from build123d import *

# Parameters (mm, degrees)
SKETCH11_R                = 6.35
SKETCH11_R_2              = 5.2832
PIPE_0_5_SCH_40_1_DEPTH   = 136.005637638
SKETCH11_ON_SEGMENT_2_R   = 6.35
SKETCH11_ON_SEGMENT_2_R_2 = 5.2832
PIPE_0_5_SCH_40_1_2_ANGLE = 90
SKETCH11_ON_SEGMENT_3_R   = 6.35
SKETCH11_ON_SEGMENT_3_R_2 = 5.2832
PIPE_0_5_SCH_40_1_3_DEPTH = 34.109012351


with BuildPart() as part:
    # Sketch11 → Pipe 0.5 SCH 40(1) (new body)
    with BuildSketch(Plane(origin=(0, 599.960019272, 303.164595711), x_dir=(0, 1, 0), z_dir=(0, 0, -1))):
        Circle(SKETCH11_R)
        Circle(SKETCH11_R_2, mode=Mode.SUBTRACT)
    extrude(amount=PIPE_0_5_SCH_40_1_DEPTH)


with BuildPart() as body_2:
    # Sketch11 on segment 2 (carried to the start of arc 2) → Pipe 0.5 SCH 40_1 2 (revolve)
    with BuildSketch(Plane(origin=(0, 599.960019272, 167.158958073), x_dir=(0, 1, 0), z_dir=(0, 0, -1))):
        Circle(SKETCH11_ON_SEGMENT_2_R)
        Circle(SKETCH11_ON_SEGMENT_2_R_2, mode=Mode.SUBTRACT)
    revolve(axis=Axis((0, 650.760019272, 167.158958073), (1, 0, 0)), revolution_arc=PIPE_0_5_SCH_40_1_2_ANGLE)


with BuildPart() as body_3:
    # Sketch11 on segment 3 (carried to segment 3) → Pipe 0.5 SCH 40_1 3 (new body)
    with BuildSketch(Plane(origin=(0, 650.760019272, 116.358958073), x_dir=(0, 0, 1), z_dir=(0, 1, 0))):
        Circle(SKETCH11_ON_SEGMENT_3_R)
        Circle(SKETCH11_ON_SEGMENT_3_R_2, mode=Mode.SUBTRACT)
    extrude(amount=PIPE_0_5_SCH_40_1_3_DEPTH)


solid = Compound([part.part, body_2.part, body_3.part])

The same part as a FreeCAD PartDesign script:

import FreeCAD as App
import Part
import Sketcher
from FreeCAD import Vector
Q = App.Units.Quantity

doc = App.newDocument("Part")
body = doc.addObject("PartDesign::Body", "Body")

sketch1 = body.newObject("Sketcher::SketchObject", "Sketch")
sketch1.AttachmentSupport = (doc.getObject("XY_Plane"), [""])
sketch1.MapMode = "FlatFace"
sketch1.AttachmentOffset = App.Placement(Vector(0, 0, 303.164596), App.Rotation())
sketch1.addGeometry(Part.Circle(Vector(0, 599.960019, 0), Vector(0, 0, 1), 6.35), False)
sketch1.addGeometry(Part.Circle(Vector(0, 599.960019, 0), Vector(0, 0, 1), 5.2832), False)
sketch1.addConstraint(Sketcher.Constraint("Coincident", 1, 3, 0, 3))
sketch1.addConstraint(Sketcher.Constraint("PointOnObject", 0, 3, -2))
sketch1.addConstraint(Sketcher.Constraint("Diameter", 0, Q("0.5 in")))
sketch1.addConstraint(Sketcher.Constraint("Diameter", 1, Q("0.416 in")))
sketch1.addConstraint(Sketcher.Constraint("DistanceY", -1, 1, 0, 3, 599.960019))
pad1 = body.newObject("PartDesign::Pad", "Pad")
pad1.Profile = sketch1
pad1.Length = 136.005638
pad1.Reversed = True
body2 = doc.addObject("PartDesign::Body", "Body001")

sketch2 = body2.newObject("Sketcher::SketchObject", "Sketch001")
sketch2.AttachmentSupport = (doc.getObject("XY_Plane001"), [""])
sketch2.MapMode = "FlatFace"
sketch2.AttachmentOffset = App.Placement(Vector(0, 0, 167.158958), App.Rotation())
sketch2.addGeometry(Part.Circle(Vector(0, 599.960019, 0), Vector(0, 0, 1), 6.35), False)
sketch2.addGeometry(Part.Circle(Vector(0, 599.960019, 0), Vector(0, 0, 1), 5.2832), False)
sketch2.addGeometry(Part.LineSegment(Vector(0, 650.760019, 0), Vector(10, 650.760019, 0)), True)
sketch2.addConstraint(Sketcher.Constraint("Horizontal", 2))
sketch2.addConstraint(Sketcher.Constraint("Coincident", 1, 3, 0, 3))
sketch2.addConstraint(Sketcher.Constraint("PointOnObject", 0, 3, -2))
sketch2.addConstraint(Sketcher.Constraint("PointOnObject", 2, 1, -2))
sketch2.addConstraint(Sketcher.Constraint("Diameter", 0, Q("0.5 in")))
sketch2.addConstraint(Sketcher.Constraint("Diameter", 1, Q("0.416 in")))
sketch2.addConstraint(Sketcher.Constraint("DistanceY", 0, 3, 2, 1, Q("2 in")))
sketch2.addConstraint(Sketcher.Constraint("DistanceX", 2, 1, 2, 2, 10.0))
sketch2.addConstraint(Sketcher.Constraint("DistanceY", -1, 1, 0, 3, 599.960019))
revolution = body2.newObject("PartDesign::Revolution", "Revolution")
revolution.Profile = sketch2
revolution.ReferenceAxis = (sketch2, ["Axis0"])
revolution.Angle = 90
body3 = doc.addObject("PartDesign::Body", "Body002")

sketch3 = body3.newObject("Sketcher::SketchObject", "Sketch002")
sketch3.AttachmentSupport = (doc.getObject("XZ_Plane002"), [""])
sketch3.MapMode = "FlatFace"
sketch3.AttachmentOffset = App.Placement(Vector(0, 0, -650.760019), App.Rotation())
sketch3.addGeometry(Part.Circle(Vector(0, 116.358958, 0), Vector(0, 0, 1), 6.35), False)
sketch3.addGeometry(Part.Circle(Vector(0, 116.358958, 0), Vector(0, 0, 1), 5.2832), False)
sketch3.addConstraint(Sketcher.Constraint("Coincident", 1, 3, 0, 3))
sketch3.addConstraint(Sketcher.Constraint("PointOnObject", 0, 3, -2))
sketch3.addConstraint(Sketcher.Constraint("Diameter", 0, Q("0.5 in")))
sketch3.addConstraint(Sketcher.Constraint("Diameter", 1, Q("0.416 in")))
sketch3.addConstraint(Sketcher.Constraint("DistanceY", -1, 1, 0, 3, 116.358958))
pad2 = body3.newObject("PartDesign::Pad", "Pad001")
pad2.Profile = sketch3
pad2.Length = 34.109012
pad2.Reversed = True

doc.recompute()
